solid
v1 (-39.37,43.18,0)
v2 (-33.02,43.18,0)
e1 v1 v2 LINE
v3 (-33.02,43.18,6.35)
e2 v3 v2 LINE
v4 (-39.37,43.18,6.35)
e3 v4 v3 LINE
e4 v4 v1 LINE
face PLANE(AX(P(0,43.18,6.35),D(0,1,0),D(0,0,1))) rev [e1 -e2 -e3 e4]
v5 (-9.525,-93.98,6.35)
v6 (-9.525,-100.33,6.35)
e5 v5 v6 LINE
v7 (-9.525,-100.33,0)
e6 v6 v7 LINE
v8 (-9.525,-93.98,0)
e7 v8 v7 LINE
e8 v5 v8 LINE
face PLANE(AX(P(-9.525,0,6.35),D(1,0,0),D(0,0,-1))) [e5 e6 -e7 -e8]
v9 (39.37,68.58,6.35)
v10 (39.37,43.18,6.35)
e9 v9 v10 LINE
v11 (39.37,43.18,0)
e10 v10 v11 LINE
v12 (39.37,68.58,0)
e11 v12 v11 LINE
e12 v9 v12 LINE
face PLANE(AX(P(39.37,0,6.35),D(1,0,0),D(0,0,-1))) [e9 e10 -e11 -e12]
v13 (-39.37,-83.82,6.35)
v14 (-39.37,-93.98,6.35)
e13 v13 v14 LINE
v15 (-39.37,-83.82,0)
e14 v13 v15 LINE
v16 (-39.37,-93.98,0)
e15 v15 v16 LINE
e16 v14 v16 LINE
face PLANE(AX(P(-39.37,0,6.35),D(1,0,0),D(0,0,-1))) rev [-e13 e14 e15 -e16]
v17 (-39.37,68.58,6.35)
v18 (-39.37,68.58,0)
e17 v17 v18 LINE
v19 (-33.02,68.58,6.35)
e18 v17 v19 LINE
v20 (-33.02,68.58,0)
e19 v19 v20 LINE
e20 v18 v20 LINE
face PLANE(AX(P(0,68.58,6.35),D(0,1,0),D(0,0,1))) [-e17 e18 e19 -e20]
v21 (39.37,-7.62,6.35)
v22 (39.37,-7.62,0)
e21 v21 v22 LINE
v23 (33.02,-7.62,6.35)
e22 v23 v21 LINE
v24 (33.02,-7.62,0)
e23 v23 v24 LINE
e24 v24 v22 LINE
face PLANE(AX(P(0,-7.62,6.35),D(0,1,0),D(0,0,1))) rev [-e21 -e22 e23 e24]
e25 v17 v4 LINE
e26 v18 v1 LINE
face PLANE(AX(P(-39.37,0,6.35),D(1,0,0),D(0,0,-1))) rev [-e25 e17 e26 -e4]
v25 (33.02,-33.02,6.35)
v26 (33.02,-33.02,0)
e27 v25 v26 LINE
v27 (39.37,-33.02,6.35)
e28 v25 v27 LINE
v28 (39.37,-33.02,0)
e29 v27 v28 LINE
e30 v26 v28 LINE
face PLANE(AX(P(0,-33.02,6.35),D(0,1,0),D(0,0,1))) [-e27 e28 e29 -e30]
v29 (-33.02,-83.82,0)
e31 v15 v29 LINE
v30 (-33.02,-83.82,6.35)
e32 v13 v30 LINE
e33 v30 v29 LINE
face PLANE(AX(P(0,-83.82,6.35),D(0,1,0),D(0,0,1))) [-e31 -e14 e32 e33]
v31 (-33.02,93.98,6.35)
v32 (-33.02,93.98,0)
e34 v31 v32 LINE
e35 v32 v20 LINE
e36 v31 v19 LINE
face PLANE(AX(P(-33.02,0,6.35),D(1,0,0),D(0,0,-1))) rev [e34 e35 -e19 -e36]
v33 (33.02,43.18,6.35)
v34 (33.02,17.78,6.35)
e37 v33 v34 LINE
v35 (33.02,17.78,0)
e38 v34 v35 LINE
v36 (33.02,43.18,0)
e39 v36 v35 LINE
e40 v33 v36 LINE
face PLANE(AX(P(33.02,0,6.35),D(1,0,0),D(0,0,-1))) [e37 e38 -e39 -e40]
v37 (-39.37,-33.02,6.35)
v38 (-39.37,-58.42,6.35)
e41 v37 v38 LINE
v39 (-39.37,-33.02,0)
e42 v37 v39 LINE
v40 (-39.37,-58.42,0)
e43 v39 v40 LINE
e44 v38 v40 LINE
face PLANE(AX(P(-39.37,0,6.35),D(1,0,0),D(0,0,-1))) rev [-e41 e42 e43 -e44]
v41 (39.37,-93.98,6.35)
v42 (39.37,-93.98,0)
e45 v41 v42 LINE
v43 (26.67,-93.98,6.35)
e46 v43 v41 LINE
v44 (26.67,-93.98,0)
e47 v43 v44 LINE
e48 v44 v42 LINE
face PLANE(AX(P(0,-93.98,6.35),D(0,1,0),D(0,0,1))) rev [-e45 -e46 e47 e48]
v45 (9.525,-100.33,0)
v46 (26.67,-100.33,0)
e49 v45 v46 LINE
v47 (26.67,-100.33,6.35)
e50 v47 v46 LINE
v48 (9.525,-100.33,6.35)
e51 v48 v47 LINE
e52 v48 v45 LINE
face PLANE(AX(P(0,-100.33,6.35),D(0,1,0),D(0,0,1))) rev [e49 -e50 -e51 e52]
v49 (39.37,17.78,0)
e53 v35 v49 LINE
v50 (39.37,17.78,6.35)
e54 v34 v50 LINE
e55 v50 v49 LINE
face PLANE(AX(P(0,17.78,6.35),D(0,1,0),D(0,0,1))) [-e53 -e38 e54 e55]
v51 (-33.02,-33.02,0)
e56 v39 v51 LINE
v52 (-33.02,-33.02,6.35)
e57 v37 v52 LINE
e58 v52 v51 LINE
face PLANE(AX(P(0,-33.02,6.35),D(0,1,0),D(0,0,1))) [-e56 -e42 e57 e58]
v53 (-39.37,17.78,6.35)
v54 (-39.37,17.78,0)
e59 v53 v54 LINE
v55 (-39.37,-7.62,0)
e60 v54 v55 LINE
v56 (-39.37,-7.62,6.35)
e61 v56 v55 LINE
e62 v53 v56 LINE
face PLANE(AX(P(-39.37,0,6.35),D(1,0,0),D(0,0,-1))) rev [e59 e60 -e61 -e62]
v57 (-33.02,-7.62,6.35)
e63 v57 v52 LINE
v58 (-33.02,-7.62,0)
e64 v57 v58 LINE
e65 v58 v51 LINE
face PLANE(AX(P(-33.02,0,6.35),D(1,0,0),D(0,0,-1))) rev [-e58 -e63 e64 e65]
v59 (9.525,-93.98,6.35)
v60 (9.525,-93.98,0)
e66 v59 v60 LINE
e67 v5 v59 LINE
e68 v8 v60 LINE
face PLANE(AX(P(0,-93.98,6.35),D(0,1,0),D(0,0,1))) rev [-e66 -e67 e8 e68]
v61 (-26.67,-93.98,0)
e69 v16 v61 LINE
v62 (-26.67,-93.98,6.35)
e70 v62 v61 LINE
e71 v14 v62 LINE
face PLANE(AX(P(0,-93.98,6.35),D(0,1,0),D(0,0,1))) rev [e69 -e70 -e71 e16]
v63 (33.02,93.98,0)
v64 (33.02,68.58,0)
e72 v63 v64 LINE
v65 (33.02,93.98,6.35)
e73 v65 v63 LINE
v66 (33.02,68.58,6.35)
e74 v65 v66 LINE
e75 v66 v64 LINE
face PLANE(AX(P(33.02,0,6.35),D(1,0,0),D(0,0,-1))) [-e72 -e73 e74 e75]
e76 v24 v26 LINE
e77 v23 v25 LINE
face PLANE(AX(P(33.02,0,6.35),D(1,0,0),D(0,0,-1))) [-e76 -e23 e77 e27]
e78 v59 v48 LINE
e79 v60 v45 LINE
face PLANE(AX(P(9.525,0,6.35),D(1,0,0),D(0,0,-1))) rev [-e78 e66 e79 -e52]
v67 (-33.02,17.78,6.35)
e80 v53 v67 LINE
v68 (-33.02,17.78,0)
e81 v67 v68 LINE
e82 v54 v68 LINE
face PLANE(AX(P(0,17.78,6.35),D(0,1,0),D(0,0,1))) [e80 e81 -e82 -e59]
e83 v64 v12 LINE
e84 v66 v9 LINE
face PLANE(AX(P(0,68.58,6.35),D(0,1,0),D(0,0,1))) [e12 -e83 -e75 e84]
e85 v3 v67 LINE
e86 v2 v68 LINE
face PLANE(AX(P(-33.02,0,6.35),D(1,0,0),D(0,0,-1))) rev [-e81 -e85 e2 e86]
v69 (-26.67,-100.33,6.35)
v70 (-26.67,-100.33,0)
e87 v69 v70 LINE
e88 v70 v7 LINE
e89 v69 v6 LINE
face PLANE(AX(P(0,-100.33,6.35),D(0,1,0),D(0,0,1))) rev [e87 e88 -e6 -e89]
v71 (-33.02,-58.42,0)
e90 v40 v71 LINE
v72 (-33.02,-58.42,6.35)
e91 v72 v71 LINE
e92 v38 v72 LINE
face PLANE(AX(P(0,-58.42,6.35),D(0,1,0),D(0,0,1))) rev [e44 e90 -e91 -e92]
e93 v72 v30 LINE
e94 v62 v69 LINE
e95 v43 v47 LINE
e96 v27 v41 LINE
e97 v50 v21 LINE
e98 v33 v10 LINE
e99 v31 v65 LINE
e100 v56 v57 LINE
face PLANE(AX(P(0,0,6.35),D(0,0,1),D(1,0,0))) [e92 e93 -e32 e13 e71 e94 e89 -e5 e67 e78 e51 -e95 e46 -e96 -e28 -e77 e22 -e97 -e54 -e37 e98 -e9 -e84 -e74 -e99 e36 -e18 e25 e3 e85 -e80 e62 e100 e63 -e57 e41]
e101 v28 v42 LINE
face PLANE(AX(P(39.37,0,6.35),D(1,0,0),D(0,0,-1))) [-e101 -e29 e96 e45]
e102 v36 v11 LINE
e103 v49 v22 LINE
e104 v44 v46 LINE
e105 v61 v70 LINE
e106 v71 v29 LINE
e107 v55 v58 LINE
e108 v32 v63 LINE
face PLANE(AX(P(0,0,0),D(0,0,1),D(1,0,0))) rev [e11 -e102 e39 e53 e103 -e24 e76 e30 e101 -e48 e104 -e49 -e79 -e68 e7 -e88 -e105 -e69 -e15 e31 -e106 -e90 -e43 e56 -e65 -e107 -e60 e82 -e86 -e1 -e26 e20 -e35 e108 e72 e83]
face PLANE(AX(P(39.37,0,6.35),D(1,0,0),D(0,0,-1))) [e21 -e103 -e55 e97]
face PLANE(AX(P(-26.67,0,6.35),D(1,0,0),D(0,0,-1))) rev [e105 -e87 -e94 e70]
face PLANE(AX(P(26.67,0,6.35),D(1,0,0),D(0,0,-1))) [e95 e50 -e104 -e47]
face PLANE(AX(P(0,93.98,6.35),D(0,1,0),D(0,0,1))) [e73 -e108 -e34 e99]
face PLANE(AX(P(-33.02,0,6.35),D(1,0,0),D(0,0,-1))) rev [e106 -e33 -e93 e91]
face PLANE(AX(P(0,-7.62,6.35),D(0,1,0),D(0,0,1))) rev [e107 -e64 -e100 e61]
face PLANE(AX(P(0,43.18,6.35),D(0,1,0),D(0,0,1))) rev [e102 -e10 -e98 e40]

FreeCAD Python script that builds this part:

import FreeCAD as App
import Part
import Sketcher

V = App.Vector
Q = App.Units.Quantity


def add_polygon(sketch, points):
    """Adds a closed chain of lines whose ends are joined by coincident constraints."""
    first, n = sketch.GeometryCount, len(points)
    for a, b in zip(points, points[1:] + points[:1]):
        sketch.addGeometry(Part.LineSegment(App.Vector(*a, 0), App.Vector(*b, 0)), False)
    for i in range(n):
        sketch.addConstraint(Sketcher.Constraint("Coincident", first + i, 2, first + (i + 1) % n, 1))

doc = App.newDocument("Part")
body = doc.addObject("PartDesign::Body", "Body")

sketch1 = body.newObject("Sketcher::SketchObject", "Sketch")
sketch1.AttachmentSupport = (doc.getObject("XY_Plane"), [""])
sketch1.MapMode = "FlatFace"
add_polygon(sketch1, [(26.67, -100.33), (26.67, -93.98), (39.37, -93.98), (39.37, -33.02), (33.02, -33.02), (33.02, -7.62), (39.37, -7.62), (39.37, 17.78), (33.02, 17.78), (33.02, 43.18), (39.37, 43.18), (39.37, 68.58), (33.02, 68.58), (33.02, 93.98), (-33.02, 93.98), (-33.02, 68.58), (-39.37, 68.58), (-39.37, 43.18), (-33.02, 43.18), (-33.02, 17.78), (-39.37, 17.78), (-39.37, -7.62), (-33.02, -7.62), (-33.02, -33.02), (-39.37, -33.02), (-39.37, -58.42), (-33.02, -58.42), (-33.02, -83.82), (-39.37, -83.82), (-39.37, -93.98), (-26.67, -93.98), (-26.67, -100.33), (-9.525, -100.33), (-9.525, -93.98), (9.525, -93.98), (9.525, -100.33)])
sketch1.addConstraint([
    Sketcher.Constraint("Vertical", 0),
    Sketcher.Constraint("Horizontal", 1),
    Sketcher.Constraint("Vertical", 2),
    Sketcher.Constraint("Horizontal", 3),
    Sketcher.Constraint("Vertical", 4),
    Sketcher.Constraint("Horizontal", 5),
    Sketcher.Constraint("Vertical", 6),
    Sketcher.Constraint("Horizontal", 7),
    Sketcher.Constraint("Vertical", 8),
    Sketcher.Constraint("Horizontal", 9),
    Sketcher.Constraint("Vertical", 10),
    Sketcher.Constraint("Horizontal", 11),
    Sketcher.Constraint("Vertical", 12),
    Sketcher.Constraint("Horizontal", 13),
    Sketcher.Constraint("Vertical", 14),
    Sketcher.Constraint("Horizontal", 15),
    Sketcher.Constraint("Vertical", 16),
    Sketcher.Constraint("Horizontal", 17),
    Sketcher.Constraint("Vertical", 18),
    Sketcher.Constraint("Horizontal", 19),
    Sketcher.Constraint("Vertical", 20),
    Sketcher.Constraint("Horizontal", 21),
    Sketcher.Constraint("Vertical", 22),
    Sketcher.Constraint("Horizontal", 23),
    Sketcher.Constraint("Vertical", 24),
    Sketcher.Constraint("Horizontal", 25),
    Sketcher.Constraint("Vertical", 26),
    Sketcher.Constraint("Horizontal", 27),
    Sketcher.Constraint("Vertical", 28),
    Sketcher.Constraint("Horizontal", 29),
    Sketcher.Constraint("Vertical", 30),
    Sketcher.Constraint("Horizontal", 31),
    Sketcher.Constraint("Vertical", 32),
    Sketcher.Constraint("Horizontal", 33),
    Sketcher.Constraint("Vertical", 34),
    Sketcher.Constraint("Horizontal", 35),
    Sketcher.Constraint("Symmetric", 11, 2, 14, 2, -2),
    Sketcher.Constraint("Symmetric", 9, 2, 16, 2, -2),
    Sketcher.Constraint("Symmetric", 7, 2, 18, 2, -2),
    Sketcher.Constraint("Symmetric", 5, 2, 20, 2, -2),
    Sketcher.Constraint("Symmetric", 3, 2, 22, 2, -2),
    Sketcher.Constraint("Symmetric", 1, 2, 28, 2, -2),
    Sketcher.Constraint("Symmetric", 31, 2, 34, 2, -2),
    Sketcher.Constraint("Horizontal", 29, 2, 32, 2),
    Sketcher.Constraint("Vertical", 2, 2, 5, 2),
    Sketcher.Constraint("Vertical", 4, 2, 7, 2),
    Sketcher.Constraint("Vertical", 6, 2, 9, 2),
    Sketcher.Constraint("Vertical", 8, 2, 11, 2),
    Sketcher.Constraint("Vertical", 20, 2, 23, 2),
    Sketcher.Constraint("Vertical", 22, 2, 25, 2),
    Sketcher.Constraint("Equal", 1, 29),
    Sketcher.Constraint("Equal", 27, 0),
    Sketcher.Constraint("Equal", 4, 6),
    Sketcher.Constraint("Equal", 6, 8),
    Sketcher.Constraint("Equal", 8, 10),
    Sketcher.Constraint("Equal", 10, 12),
    Sketcher.Constraint("Equal", 22, 24),
    Sketcher.Constraint("Equal", 24, 26),
    Sketcher.Constraint("DistanceY", 4, 1, 4, 2, Q("1 in")),
    Sketcher.Constraint("DistanceX", 1, 1, 1, 2, Q("0.5 in")),
    Sketcher.Constraint("DistanceX", 13, 2, 13, 1, Q("2.6 in")),
    Sketcher.Constraint("DistanceY", 2, 1, 2, 2, Q("2.4 in")),
    Sketcher.Constraint("DistanceX", 3, 2, 3, 1, Q("0.25 in")),
    Sketcher.Constraint("DistanceX", 33, 1, 33, 2, Q("0.75 in")),
    Sketcher.Constraint("DistanceY", 0, 2, -1, 1, Q("3.7 in")),
])
pad1 = body.newObject("PartDesign::Pad", "Pad")
pad1.Profile = sketch1
pad1.Length = Q("0.25 in")

doc.recompute()
